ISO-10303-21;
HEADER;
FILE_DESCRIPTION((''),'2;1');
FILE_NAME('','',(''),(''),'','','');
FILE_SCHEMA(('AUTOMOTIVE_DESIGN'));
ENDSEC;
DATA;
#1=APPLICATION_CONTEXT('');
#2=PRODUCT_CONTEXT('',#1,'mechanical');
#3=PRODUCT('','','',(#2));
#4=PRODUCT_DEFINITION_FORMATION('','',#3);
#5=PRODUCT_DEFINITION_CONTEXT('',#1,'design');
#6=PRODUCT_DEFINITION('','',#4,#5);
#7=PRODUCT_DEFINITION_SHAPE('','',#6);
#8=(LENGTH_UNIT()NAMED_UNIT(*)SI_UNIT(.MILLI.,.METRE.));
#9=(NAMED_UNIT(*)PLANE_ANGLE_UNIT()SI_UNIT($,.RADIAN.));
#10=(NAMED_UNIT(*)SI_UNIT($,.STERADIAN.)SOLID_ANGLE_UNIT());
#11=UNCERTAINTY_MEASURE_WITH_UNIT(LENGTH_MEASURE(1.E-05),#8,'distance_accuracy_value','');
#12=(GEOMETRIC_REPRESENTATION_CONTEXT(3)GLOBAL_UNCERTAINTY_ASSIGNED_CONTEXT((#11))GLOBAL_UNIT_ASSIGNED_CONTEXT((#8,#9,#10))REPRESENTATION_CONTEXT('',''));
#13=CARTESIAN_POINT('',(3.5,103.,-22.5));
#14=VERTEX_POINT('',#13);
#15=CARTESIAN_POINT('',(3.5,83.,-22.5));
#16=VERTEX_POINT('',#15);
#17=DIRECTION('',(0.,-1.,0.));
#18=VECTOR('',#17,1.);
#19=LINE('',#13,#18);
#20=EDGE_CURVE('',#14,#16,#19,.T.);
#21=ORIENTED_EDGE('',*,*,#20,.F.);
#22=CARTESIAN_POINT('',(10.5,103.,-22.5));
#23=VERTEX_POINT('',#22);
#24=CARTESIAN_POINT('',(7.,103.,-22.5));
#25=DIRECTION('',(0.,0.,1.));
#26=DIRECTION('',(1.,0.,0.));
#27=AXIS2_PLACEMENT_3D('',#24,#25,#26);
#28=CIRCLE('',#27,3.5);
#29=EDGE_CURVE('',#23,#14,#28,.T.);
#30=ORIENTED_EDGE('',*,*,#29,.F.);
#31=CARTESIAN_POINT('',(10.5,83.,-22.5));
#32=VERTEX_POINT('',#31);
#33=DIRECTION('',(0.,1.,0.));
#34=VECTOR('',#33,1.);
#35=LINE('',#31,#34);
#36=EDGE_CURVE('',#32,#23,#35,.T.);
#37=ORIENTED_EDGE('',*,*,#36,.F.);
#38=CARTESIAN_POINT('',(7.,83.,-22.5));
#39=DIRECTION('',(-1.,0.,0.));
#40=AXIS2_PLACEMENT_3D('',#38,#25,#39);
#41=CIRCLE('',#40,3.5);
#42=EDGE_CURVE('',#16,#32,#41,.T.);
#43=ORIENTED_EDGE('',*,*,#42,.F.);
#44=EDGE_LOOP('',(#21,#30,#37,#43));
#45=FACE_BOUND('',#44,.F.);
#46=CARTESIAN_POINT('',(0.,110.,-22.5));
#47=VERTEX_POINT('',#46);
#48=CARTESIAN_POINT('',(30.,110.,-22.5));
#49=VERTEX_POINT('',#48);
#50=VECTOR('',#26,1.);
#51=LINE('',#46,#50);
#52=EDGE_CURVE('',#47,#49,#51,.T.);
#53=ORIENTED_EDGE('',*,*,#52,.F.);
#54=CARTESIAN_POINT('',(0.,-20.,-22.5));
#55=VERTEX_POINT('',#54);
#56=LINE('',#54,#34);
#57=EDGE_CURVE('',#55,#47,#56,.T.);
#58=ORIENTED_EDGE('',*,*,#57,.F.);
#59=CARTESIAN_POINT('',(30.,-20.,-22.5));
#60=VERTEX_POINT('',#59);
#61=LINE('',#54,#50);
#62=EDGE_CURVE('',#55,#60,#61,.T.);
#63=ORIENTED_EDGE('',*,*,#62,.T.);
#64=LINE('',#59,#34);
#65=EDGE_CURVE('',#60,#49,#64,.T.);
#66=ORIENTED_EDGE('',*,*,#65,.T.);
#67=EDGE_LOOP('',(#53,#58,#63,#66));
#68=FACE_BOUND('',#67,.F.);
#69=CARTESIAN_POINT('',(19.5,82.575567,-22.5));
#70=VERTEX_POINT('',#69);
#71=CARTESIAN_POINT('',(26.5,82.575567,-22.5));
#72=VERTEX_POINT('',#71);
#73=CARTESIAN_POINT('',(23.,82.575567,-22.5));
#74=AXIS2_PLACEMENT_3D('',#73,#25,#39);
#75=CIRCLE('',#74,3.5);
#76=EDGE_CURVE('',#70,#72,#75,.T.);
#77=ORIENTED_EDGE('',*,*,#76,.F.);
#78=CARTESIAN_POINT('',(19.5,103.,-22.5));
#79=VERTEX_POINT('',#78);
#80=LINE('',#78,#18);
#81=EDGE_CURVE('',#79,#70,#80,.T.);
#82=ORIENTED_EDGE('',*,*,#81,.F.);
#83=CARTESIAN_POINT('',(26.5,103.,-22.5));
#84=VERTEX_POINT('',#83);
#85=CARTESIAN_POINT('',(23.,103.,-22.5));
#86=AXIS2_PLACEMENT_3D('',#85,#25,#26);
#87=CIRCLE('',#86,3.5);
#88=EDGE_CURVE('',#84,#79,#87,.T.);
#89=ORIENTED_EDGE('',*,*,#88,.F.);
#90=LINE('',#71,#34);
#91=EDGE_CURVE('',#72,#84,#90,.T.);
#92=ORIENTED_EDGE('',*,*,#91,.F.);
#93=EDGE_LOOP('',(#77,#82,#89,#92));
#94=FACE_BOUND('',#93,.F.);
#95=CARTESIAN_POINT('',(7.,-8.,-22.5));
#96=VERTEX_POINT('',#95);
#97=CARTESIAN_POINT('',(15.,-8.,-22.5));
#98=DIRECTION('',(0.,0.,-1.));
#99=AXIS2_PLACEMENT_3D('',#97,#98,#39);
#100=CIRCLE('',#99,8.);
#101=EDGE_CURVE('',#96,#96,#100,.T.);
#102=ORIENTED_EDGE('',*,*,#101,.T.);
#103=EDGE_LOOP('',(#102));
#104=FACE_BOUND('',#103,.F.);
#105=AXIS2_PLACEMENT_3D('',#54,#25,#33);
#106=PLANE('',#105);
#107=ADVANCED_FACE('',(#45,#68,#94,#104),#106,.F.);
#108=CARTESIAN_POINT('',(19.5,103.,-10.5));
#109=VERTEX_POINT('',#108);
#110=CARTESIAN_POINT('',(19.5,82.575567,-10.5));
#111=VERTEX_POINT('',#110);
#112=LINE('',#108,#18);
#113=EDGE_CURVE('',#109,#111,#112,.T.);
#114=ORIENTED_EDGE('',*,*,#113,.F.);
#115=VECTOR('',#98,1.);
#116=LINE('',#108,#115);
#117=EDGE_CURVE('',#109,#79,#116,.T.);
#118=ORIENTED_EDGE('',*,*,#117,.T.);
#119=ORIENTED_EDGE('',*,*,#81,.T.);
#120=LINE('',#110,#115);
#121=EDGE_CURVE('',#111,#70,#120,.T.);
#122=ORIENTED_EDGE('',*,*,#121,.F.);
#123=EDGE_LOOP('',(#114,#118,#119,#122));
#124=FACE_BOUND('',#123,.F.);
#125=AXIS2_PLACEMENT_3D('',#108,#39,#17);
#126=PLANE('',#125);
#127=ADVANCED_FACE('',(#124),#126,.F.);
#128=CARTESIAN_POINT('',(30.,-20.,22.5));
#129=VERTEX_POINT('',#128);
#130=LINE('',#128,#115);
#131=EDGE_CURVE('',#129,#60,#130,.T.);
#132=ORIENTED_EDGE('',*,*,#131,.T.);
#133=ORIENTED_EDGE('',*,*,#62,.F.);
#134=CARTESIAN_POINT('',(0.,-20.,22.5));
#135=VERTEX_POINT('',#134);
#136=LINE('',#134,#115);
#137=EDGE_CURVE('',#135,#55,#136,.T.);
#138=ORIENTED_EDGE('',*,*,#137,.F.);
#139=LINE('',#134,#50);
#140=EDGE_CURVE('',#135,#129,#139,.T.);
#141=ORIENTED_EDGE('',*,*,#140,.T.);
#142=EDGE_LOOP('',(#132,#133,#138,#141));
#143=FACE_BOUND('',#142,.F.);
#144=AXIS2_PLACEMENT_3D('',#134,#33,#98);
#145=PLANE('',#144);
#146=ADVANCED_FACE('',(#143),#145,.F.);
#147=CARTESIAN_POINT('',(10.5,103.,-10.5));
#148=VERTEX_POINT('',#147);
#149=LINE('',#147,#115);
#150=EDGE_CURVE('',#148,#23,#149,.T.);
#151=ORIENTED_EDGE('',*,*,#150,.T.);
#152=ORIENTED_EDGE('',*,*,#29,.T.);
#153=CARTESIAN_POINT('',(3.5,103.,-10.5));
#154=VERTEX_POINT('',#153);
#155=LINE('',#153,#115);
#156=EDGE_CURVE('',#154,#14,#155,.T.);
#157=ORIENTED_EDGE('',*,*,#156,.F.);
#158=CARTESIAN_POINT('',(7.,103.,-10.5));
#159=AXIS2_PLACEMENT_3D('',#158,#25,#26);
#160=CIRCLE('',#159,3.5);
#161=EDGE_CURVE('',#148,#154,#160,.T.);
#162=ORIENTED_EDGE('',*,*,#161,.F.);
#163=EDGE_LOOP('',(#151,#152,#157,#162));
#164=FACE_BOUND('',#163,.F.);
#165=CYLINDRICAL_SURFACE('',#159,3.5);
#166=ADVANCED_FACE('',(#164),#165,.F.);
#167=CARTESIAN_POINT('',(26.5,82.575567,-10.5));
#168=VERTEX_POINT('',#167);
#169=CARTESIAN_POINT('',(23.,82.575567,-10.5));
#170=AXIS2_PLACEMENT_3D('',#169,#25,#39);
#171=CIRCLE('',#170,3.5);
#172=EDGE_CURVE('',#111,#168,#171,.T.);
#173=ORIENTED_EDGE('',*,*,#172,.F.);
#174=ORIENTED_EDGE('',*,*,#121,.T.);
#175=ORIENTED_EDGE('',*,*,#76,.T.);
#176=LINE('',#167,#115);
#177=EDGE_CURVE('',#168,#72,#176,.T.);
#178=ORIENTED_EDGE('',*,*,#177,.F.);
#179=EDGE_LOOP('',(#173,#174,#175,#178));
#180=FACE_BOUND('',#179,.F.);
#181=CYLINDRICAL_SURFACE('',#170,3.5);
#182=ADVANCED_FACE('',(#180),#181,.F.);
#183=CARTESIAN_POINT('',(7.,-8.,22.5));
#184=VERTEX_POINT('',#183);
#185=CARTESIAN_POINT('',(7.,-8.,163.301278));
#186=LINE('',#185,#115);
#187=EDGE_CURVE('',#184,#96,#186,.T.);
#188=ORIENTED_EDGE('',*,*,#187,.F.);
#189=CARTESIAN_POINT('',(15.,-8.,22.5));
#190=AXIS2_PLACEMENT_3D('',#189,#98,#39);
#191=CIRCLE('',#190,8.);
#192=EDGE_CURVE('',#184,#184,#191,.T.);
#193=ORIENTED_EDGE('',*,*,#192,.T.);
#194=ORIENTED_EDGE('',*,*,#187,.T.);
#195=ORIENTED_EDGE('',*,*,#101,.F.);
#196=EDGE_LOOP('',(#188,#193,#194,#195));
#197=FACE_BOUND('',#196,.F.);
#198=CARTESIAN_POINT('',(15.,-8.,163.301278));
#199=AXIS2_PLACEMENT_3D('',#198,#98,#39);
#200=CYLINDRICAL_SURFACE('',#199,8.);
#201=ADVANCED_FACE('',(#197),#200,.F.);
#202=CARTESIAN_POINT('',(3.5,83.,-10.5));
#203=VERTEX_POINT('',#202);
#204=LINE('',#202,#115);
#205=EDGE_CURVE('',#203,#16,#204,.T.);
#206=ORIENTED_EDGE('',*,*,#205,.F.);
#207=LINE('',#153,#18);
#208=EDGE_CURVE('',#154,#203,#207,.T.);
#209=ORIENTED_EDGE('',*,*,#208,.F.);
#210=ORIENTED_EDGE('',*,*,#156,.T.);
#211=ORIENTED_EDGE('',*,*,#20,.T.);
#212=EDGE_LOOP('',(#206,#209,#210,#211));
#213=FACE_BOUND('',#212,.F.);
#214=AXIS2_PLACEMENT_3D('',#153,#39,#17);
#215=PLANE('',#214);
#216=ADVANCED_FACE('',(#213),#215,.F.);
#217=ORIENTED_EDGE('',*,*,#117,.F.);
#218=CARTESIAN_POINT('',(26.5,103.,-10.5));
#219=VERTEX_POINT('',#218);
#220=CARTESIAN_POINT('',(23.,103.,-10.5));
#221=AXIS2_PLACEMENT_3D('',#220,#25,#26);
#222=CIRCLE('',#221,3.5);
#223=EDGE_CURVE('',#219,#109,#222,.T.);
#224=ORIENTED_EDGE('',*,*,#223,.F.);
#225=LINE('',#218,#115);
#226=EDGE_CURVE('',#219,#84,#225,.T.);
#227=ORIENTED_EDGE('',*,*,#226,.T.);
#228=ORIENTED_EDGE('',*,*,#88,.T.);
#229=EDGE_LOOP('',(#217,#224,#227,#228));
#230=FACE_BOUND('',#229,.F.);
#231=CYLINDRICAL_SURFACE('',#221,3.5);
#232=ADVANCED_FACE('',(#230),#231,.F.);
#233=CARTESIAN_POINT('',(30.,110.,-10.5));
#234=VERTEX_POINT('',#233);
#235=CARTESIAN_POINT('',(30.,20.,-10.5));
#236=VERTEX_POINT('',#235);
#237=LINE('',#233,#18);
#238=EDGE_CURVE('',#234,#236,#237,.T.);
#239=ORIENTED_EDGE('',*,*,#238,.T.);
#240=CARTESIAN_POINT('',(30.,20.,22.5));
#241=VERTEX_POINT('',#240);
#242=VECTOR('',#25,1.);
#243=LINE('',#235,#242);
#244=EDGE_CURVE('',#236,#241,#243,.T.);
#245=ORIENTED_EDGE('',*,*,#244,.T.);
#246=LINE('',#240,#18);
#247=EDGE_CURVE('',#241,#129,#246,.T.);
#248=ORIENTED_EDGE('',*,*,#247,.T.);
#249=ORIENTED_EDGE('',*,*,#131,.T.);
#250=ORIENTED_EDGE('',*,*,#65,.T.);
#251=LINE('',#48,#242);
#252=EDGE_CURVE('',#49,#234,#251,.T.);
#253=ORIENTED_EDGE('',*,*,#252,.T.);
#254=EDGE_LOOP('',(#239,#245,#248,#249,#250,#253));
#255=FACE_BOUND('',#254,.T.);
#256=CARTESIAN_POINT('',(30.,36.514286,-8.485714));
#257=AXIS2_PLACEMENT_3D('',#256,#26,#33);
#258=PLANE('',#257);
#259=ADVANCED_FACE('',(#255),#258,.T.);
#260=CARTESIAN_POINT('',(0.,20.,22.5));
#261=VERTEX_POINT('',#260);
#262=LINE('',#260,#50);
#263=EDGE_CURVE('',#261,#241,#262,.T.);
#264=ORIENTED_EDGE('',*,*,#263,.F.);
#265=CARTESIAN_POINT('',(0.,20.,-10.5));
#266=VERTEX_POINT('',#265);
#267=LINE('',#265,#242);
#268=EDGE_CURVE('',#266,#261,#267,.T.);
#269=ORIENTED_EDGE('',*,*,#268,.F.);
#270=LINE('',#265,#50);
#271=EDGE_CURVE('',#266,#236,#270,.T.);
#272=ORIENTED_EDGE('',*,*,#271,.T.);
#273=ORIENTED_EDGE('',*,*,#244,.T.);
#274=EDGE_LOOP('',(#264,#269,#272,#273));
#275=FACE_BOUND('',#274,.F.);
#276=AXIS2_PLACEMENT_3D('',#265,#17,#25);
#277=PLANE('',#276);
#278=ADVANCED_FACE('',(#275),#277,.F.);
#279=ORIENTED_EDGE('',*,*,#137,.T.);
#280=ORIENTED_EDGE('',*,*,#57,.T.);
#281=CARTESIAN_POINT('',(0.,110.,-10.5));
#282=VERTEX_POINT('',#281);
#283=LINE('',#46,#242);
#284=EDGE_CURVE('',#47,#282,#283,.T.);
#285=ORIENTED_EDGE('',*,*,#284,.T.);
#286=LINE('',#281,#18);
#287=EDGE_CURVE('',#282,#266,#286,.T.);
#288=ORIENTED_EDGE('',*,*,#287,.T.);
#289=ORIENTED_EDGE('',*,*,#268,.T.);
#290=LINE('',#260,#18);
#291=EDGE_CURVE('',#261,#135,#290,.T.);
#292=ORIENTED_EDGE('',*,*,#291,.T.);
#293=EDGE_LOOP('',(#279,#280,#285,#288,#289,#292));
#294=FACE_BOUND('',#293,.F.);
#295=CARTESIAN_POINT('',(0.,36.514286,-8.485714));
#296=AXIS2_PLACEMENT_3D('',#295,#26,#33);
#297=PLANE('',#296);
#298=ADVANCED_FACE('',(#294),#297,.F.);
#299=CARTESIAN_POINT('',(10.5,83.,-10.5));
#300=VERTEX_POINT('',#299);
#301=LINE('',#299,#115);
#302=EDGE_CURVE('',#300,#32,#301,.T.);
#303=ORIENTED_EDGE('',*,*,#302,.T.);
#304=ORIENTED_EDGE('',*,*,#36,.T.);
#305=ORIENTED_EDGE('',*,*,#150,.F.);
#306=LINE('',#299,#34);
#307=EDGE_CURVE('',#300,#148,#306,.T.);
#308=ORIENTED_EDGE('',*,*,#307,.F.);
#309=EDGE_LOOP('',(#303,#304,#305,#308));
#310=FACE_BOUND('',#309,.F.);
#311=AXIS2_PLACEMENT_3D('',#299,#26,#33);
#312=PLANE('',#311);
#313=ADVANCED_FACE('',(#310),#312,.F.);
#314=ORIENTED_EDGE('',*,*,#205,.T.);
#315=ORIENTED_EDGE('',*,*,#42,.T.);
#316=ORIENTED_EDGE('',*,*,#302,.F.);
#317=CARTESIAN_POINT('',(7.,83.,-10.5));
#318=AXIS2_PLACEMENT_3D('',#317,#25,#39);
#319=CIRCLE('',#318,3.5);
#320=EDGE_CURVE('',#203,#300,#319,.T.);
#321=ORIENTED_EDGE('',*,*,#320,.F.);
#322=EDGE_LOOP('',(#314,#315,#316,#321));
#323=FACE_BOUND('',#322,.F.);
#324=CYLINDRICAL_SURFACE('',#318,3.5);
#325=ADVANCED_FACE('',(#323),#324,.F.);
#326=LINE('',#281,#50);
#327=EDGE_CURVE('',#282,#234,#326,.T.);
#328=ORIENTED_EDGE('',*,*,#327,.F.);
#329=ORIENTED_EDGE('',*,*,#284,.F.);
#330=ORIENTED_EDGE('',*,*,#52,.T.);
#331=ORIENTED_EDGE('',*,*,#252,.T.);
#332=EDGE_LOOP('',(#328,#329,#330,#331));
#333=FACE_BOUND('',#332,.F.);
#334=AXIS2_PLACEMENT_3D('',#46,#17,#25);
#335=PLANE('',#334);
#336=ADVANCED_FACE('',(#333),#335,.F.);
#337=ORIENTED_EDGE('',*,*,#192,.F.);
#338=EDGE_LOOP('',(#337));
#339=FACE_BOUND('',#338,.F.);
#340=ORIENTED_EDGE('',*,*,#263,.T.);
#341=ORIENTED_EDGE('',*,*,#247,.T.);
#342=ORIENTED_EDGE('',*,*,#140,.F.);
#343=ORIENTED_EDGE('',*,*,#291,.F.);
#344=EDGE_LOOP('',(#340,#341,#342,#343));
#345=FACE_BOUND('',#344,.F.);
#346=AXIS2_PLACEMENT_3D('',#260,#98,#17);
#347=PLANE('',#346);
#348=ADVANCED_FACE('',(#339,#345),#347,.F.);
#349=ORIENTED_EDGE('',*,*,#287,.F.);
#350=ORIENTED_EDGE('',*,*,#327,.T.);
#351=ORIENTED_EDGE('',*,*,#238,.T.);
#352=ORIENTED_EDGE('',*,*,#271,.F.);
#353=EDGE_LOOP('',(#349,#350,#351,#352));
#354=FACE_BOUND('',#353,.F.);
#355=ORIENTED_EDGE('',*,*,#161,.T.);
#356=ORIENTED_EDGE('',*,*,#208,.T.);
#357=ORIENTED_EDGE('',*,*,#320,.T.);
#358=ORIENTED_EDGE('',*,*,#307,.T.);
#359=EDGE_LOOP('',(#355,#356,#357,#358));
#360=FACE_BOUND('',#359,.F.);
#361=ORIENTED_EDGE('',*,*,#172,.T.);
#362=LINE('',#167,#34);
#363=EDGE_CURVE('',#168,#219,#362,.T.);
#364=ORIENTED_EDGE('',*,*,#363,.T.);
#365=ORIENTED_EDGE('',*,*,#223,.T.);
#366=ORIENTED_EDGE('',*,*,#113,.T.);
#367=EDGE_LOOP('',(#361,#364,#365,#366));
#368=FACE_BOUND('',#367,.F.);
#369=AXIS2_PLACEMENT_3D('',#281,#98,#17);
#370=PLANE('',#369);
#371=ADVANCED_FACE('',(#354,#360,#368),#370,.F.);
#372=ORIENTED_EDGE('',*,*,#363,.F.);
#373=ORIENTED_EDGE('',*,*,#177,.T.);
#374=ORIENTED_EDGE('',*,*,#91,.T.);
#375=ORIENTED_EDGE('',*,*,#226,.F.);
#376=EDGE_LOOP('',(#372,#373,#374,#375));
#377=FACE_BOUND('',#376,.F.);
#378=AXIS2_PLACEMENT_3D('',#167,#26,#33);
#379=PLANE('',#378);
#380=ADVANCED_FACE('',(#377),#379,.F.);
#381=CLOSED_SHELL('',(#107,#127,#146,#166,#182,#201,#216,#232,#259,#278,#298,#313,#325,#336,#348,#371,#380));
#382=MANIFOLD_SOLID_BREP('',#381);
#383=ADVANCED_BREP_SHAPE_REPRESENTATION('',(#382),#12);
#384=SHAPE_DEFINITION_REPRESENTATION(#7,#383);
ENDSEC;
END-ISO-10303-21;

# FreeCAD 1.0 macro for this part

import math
import FreeCAD as App
import Part
import Sketcher
from FreeCAD import Vector

doc = App.newDocument("Part")
body = doc.addObject("PartDesign::Body", "Body")

# Sketch on YZ plane
sketch1 = body.newObject("Sketcher::SketchObject", "Sketch")
sketch1.AttachmentSupport = (doc.getObject("YZ_Plane"), [""])
sketch1.MapMode = "FlatFace"
sketch1.addGeometry(Part.LineSegment(Vector(-20, -22, 0), Vector(110, -22, 0)), False)
sketch1.addGeometry(Part.LineSegment(Vector(110, -22, 0), Vector(110, -10, 0)), False)
sketch1.addGeometry(Part.LineSegment(Vector(110, -10, 0), Vector(20, -10, 0)), False)
sketch1.addGeometry(Part.LineSegment(Vector(20, -10, 0), Vector(20, 22, 0)), False)
sketch1.addGeometry(Part.LineSegment(Vector(20, 22, 0), Vector(-20, 22, 0)), False)
sketch1.addGeometry(Part.LineSegment(Vector(-20, 22, 0), Vector(-20, -22, 0)), False)
sketch1.addConstraint(Sketcher.Constraint("Coincident", 0, 2, 1, 1))
sketch1.addConstraint(Sketcher.Constraint("Coincident", 1, 2, 2, 1))
sketch1.addConstraint(Sketcher.Constraint("Coincident", 2, 2, 3, 1))
sketch1.addConstraint(Sketcher.Constraint("Coincident", 3, 2, 4, 1))
sketch1.addConstraint(Sketcher.Constraint("Coincident", 4, 2, 5, 1))
sketch1.addConstraint(Sketcher.Constraint("Coincident", 5, 2, 0, 1))
sketch1.addConstraint(Sketcher.Constraint("Horizontal", 0))
sketch1.addConstraint(Sketcher.Constraint("Vertical", 1))
sketch1.addConstraint(Sketcher.Constraint("Horizontal", 2))
sketch1.addConstraint(Sketcher.Constraint("Vertical", 3))
sketch1.addConstraint(Sketcher.Constraint("Horizontal", 4))
sketch1.addConstraint(Sketcher.Constraint("Vertical", 5))
sketch1.addConstraint(Sketcher.Constraint("Symmetric", 3, 2, 5, 2, -1, 1))
sketch1.addConstraint(Sketcher.Constraint("DistanceX", 0, 1, 0, 2, 130.0))
sketch1.addConstraint(Sketcher.Constraint("DistanceX", 2, 2, 2, 1, 90.0))
sketch1.addConstraint(Sketcher.Constraint("DistanceY", 1, 1, 1, 2, 12.0))
sketch1.addConstraint(Sketcher.Constraint("DistanceY", 3, 1, 3, 2, 33.0))
pad1 = body.newObject("PartDesign::Pad", "Pad")
pad1.Profile = sketch1
pad1.Length = 30

# Sketch on XY plane
sketch2 = body.newObject("Sketcher::SketchObject", "Sketch001")
sketch2.AttachmentSupport = (doc.getObject("XY_Plane"), [""])
sketch2.MapMode = "FlatFace"
sketch2.AttachmentOffset = App.Placement(Vector(0, 0, -10.5), App.Rotation())
sketch2.addGeometry(Part.ArcOfCircle(Part.Circle(Vector(7, 103, 0), Vector(0, 0, 1), 3.5), math.radians(0), math.radians(180)), False)
sketch2.addGeometry(Part.LineSegment(Vector(3.5, 103, 0), Vector(3.5, 83, 0)), False)
sketch2.addGeometry(Part.ArcOfCircle(Part.Circle(Vector(7, 83, 0), Vector(0, 0, 1), 3.5), math.radians(180), math.radians(360)), False)
sketch2.addGeometry(Part.LineSegment(Vector(10.5, 83, 0), Vector(10.5, 103, 0)), False)
sketch2.addGeometry(Part.LineSegment(Vector(26.5, 82.6, 0), Vector(26.5, 103, 0)), False)
sketch2.addGeometry(Part.ArcOfCircle(Part.Circle(Vector(23, 103, 0), Vector(0, 0, 1), 3.5), math.radians(0), math.radians(180)), False)
sketch2.addGeometry(Part.LineSegment(Vector(19.5, 103, 0), Vector(19.5, 82.6, 0)), False)
sketch2.addGeometry(Part.ArcOfCircle(Part.Circle(Vector(23, 82.6, 0), Vector(0, 0, 1), 3.5), math.radians(180), math.radians(360)), False)
sketch2.addConstraint(Sketcher.Constraint("Tangent", 0, 2, 1, 1))
sketch2.addConstraint(Sketcher.Constraint("Tangent", 1, 2, 2, 1))
sketch2.addConstraint(Sketcher.Constraint("Tangent", 2, 2, 3, 1))
sketch2.addConstraint(Sketcher.Constraint("Tangent", 3, 2, 0, 1))
sketch2.addConstraint(Sketcher.Constraint("Tangent", 4, 2, 5, 1))
sketch2.addConstraint(Sketcher.Constraint("Tangent", 5, 2, 6, 1))
sketch2.addConstraint(Sketcher.Constraint("Tangent", 6, 2, 7, 1))
sketch2.addConstraint(Sketcher.Constraint("Tangent", 7, 2, 4, 1))
sketch2.addConstraint(Sketcher.Constraint("Vertical", 1))
sketch2.addConstraint(Sketcher.Constraint("Vertical", 3))
sketch2.addConstraint(Sketcher.Constraint("Vertical", 4))
sketch2.addConstraint(Sketcher.Constraint("Vertical", 6))
sketch2.addConstraint(Sketcher.Constraint("Equal", 2, 5))
sketch2.addConstraint(Sketcher.Constraint("Horizontal", 0, 3, 5, 3))
sketch2.addConstraint(Sketcher.Constraint("Radius", 0, 3.5))
sketch2.addConstraint(Sketcher.Constraint("DistanceY", 1, 2, 1, 1, 20.0))
sketch2.addConstraint(Sketcher.Constraint("DistanceX", -1, 1, 0, 3, 7.0))
sketch2.addConstraint(Sketcher.Constraint("DistanceY", -1, 1, 0, 3, 103.0))
sketch2.addConstraint(Sketcher.Constraint("DistanceX", -1, 1, 5, 3, 23.0))
sketch2.addConstraint(Sketcher.Constraint("DistanceY", 4, 1, 4, 2, 20.424433))
pocket1 = body.newObject("PartDesign::Pocket", "Pocket")
pocket1.Profile = sketch2
pocket1.Length = 12

# Sketch on XY plane
sketch3 = body.newObject("Sketcher::SketchObject", "Sketch002")
sketch3.AttachmentSupport = (doc.getObject("XY_Plane"), [""])
sketch3.MapMode = "FlatFace"
sketch3.AttachmentOffset = App.Placement(Vector(0, 0, 22.5), App.Rotation())
sketch3.addGeometry(Part.Circle(Vector(15, -8, 0), Vector(0, 0, 1), 8), False)
sketch3.addConstraint(Sketcher.Constraint("Diameter", 0, 16.0))
sketch3.addConstraint(Sketcher.Constraint("DistanceX", -1, 1, 0, 3, 15.0))
sketch3.addConstraint(Sketcher.Constraint("DistanceY", 0, 3, -1, 1, 8.0))
doc.recompute()
hole = body.newObject("PartDesign::Hole", "Hole")
hole.Profile = sketch3
hole.ThreadType = "None"
hole.Diameter = 16
hole.DepthType = "ThroughAll"

doc.recompute()
